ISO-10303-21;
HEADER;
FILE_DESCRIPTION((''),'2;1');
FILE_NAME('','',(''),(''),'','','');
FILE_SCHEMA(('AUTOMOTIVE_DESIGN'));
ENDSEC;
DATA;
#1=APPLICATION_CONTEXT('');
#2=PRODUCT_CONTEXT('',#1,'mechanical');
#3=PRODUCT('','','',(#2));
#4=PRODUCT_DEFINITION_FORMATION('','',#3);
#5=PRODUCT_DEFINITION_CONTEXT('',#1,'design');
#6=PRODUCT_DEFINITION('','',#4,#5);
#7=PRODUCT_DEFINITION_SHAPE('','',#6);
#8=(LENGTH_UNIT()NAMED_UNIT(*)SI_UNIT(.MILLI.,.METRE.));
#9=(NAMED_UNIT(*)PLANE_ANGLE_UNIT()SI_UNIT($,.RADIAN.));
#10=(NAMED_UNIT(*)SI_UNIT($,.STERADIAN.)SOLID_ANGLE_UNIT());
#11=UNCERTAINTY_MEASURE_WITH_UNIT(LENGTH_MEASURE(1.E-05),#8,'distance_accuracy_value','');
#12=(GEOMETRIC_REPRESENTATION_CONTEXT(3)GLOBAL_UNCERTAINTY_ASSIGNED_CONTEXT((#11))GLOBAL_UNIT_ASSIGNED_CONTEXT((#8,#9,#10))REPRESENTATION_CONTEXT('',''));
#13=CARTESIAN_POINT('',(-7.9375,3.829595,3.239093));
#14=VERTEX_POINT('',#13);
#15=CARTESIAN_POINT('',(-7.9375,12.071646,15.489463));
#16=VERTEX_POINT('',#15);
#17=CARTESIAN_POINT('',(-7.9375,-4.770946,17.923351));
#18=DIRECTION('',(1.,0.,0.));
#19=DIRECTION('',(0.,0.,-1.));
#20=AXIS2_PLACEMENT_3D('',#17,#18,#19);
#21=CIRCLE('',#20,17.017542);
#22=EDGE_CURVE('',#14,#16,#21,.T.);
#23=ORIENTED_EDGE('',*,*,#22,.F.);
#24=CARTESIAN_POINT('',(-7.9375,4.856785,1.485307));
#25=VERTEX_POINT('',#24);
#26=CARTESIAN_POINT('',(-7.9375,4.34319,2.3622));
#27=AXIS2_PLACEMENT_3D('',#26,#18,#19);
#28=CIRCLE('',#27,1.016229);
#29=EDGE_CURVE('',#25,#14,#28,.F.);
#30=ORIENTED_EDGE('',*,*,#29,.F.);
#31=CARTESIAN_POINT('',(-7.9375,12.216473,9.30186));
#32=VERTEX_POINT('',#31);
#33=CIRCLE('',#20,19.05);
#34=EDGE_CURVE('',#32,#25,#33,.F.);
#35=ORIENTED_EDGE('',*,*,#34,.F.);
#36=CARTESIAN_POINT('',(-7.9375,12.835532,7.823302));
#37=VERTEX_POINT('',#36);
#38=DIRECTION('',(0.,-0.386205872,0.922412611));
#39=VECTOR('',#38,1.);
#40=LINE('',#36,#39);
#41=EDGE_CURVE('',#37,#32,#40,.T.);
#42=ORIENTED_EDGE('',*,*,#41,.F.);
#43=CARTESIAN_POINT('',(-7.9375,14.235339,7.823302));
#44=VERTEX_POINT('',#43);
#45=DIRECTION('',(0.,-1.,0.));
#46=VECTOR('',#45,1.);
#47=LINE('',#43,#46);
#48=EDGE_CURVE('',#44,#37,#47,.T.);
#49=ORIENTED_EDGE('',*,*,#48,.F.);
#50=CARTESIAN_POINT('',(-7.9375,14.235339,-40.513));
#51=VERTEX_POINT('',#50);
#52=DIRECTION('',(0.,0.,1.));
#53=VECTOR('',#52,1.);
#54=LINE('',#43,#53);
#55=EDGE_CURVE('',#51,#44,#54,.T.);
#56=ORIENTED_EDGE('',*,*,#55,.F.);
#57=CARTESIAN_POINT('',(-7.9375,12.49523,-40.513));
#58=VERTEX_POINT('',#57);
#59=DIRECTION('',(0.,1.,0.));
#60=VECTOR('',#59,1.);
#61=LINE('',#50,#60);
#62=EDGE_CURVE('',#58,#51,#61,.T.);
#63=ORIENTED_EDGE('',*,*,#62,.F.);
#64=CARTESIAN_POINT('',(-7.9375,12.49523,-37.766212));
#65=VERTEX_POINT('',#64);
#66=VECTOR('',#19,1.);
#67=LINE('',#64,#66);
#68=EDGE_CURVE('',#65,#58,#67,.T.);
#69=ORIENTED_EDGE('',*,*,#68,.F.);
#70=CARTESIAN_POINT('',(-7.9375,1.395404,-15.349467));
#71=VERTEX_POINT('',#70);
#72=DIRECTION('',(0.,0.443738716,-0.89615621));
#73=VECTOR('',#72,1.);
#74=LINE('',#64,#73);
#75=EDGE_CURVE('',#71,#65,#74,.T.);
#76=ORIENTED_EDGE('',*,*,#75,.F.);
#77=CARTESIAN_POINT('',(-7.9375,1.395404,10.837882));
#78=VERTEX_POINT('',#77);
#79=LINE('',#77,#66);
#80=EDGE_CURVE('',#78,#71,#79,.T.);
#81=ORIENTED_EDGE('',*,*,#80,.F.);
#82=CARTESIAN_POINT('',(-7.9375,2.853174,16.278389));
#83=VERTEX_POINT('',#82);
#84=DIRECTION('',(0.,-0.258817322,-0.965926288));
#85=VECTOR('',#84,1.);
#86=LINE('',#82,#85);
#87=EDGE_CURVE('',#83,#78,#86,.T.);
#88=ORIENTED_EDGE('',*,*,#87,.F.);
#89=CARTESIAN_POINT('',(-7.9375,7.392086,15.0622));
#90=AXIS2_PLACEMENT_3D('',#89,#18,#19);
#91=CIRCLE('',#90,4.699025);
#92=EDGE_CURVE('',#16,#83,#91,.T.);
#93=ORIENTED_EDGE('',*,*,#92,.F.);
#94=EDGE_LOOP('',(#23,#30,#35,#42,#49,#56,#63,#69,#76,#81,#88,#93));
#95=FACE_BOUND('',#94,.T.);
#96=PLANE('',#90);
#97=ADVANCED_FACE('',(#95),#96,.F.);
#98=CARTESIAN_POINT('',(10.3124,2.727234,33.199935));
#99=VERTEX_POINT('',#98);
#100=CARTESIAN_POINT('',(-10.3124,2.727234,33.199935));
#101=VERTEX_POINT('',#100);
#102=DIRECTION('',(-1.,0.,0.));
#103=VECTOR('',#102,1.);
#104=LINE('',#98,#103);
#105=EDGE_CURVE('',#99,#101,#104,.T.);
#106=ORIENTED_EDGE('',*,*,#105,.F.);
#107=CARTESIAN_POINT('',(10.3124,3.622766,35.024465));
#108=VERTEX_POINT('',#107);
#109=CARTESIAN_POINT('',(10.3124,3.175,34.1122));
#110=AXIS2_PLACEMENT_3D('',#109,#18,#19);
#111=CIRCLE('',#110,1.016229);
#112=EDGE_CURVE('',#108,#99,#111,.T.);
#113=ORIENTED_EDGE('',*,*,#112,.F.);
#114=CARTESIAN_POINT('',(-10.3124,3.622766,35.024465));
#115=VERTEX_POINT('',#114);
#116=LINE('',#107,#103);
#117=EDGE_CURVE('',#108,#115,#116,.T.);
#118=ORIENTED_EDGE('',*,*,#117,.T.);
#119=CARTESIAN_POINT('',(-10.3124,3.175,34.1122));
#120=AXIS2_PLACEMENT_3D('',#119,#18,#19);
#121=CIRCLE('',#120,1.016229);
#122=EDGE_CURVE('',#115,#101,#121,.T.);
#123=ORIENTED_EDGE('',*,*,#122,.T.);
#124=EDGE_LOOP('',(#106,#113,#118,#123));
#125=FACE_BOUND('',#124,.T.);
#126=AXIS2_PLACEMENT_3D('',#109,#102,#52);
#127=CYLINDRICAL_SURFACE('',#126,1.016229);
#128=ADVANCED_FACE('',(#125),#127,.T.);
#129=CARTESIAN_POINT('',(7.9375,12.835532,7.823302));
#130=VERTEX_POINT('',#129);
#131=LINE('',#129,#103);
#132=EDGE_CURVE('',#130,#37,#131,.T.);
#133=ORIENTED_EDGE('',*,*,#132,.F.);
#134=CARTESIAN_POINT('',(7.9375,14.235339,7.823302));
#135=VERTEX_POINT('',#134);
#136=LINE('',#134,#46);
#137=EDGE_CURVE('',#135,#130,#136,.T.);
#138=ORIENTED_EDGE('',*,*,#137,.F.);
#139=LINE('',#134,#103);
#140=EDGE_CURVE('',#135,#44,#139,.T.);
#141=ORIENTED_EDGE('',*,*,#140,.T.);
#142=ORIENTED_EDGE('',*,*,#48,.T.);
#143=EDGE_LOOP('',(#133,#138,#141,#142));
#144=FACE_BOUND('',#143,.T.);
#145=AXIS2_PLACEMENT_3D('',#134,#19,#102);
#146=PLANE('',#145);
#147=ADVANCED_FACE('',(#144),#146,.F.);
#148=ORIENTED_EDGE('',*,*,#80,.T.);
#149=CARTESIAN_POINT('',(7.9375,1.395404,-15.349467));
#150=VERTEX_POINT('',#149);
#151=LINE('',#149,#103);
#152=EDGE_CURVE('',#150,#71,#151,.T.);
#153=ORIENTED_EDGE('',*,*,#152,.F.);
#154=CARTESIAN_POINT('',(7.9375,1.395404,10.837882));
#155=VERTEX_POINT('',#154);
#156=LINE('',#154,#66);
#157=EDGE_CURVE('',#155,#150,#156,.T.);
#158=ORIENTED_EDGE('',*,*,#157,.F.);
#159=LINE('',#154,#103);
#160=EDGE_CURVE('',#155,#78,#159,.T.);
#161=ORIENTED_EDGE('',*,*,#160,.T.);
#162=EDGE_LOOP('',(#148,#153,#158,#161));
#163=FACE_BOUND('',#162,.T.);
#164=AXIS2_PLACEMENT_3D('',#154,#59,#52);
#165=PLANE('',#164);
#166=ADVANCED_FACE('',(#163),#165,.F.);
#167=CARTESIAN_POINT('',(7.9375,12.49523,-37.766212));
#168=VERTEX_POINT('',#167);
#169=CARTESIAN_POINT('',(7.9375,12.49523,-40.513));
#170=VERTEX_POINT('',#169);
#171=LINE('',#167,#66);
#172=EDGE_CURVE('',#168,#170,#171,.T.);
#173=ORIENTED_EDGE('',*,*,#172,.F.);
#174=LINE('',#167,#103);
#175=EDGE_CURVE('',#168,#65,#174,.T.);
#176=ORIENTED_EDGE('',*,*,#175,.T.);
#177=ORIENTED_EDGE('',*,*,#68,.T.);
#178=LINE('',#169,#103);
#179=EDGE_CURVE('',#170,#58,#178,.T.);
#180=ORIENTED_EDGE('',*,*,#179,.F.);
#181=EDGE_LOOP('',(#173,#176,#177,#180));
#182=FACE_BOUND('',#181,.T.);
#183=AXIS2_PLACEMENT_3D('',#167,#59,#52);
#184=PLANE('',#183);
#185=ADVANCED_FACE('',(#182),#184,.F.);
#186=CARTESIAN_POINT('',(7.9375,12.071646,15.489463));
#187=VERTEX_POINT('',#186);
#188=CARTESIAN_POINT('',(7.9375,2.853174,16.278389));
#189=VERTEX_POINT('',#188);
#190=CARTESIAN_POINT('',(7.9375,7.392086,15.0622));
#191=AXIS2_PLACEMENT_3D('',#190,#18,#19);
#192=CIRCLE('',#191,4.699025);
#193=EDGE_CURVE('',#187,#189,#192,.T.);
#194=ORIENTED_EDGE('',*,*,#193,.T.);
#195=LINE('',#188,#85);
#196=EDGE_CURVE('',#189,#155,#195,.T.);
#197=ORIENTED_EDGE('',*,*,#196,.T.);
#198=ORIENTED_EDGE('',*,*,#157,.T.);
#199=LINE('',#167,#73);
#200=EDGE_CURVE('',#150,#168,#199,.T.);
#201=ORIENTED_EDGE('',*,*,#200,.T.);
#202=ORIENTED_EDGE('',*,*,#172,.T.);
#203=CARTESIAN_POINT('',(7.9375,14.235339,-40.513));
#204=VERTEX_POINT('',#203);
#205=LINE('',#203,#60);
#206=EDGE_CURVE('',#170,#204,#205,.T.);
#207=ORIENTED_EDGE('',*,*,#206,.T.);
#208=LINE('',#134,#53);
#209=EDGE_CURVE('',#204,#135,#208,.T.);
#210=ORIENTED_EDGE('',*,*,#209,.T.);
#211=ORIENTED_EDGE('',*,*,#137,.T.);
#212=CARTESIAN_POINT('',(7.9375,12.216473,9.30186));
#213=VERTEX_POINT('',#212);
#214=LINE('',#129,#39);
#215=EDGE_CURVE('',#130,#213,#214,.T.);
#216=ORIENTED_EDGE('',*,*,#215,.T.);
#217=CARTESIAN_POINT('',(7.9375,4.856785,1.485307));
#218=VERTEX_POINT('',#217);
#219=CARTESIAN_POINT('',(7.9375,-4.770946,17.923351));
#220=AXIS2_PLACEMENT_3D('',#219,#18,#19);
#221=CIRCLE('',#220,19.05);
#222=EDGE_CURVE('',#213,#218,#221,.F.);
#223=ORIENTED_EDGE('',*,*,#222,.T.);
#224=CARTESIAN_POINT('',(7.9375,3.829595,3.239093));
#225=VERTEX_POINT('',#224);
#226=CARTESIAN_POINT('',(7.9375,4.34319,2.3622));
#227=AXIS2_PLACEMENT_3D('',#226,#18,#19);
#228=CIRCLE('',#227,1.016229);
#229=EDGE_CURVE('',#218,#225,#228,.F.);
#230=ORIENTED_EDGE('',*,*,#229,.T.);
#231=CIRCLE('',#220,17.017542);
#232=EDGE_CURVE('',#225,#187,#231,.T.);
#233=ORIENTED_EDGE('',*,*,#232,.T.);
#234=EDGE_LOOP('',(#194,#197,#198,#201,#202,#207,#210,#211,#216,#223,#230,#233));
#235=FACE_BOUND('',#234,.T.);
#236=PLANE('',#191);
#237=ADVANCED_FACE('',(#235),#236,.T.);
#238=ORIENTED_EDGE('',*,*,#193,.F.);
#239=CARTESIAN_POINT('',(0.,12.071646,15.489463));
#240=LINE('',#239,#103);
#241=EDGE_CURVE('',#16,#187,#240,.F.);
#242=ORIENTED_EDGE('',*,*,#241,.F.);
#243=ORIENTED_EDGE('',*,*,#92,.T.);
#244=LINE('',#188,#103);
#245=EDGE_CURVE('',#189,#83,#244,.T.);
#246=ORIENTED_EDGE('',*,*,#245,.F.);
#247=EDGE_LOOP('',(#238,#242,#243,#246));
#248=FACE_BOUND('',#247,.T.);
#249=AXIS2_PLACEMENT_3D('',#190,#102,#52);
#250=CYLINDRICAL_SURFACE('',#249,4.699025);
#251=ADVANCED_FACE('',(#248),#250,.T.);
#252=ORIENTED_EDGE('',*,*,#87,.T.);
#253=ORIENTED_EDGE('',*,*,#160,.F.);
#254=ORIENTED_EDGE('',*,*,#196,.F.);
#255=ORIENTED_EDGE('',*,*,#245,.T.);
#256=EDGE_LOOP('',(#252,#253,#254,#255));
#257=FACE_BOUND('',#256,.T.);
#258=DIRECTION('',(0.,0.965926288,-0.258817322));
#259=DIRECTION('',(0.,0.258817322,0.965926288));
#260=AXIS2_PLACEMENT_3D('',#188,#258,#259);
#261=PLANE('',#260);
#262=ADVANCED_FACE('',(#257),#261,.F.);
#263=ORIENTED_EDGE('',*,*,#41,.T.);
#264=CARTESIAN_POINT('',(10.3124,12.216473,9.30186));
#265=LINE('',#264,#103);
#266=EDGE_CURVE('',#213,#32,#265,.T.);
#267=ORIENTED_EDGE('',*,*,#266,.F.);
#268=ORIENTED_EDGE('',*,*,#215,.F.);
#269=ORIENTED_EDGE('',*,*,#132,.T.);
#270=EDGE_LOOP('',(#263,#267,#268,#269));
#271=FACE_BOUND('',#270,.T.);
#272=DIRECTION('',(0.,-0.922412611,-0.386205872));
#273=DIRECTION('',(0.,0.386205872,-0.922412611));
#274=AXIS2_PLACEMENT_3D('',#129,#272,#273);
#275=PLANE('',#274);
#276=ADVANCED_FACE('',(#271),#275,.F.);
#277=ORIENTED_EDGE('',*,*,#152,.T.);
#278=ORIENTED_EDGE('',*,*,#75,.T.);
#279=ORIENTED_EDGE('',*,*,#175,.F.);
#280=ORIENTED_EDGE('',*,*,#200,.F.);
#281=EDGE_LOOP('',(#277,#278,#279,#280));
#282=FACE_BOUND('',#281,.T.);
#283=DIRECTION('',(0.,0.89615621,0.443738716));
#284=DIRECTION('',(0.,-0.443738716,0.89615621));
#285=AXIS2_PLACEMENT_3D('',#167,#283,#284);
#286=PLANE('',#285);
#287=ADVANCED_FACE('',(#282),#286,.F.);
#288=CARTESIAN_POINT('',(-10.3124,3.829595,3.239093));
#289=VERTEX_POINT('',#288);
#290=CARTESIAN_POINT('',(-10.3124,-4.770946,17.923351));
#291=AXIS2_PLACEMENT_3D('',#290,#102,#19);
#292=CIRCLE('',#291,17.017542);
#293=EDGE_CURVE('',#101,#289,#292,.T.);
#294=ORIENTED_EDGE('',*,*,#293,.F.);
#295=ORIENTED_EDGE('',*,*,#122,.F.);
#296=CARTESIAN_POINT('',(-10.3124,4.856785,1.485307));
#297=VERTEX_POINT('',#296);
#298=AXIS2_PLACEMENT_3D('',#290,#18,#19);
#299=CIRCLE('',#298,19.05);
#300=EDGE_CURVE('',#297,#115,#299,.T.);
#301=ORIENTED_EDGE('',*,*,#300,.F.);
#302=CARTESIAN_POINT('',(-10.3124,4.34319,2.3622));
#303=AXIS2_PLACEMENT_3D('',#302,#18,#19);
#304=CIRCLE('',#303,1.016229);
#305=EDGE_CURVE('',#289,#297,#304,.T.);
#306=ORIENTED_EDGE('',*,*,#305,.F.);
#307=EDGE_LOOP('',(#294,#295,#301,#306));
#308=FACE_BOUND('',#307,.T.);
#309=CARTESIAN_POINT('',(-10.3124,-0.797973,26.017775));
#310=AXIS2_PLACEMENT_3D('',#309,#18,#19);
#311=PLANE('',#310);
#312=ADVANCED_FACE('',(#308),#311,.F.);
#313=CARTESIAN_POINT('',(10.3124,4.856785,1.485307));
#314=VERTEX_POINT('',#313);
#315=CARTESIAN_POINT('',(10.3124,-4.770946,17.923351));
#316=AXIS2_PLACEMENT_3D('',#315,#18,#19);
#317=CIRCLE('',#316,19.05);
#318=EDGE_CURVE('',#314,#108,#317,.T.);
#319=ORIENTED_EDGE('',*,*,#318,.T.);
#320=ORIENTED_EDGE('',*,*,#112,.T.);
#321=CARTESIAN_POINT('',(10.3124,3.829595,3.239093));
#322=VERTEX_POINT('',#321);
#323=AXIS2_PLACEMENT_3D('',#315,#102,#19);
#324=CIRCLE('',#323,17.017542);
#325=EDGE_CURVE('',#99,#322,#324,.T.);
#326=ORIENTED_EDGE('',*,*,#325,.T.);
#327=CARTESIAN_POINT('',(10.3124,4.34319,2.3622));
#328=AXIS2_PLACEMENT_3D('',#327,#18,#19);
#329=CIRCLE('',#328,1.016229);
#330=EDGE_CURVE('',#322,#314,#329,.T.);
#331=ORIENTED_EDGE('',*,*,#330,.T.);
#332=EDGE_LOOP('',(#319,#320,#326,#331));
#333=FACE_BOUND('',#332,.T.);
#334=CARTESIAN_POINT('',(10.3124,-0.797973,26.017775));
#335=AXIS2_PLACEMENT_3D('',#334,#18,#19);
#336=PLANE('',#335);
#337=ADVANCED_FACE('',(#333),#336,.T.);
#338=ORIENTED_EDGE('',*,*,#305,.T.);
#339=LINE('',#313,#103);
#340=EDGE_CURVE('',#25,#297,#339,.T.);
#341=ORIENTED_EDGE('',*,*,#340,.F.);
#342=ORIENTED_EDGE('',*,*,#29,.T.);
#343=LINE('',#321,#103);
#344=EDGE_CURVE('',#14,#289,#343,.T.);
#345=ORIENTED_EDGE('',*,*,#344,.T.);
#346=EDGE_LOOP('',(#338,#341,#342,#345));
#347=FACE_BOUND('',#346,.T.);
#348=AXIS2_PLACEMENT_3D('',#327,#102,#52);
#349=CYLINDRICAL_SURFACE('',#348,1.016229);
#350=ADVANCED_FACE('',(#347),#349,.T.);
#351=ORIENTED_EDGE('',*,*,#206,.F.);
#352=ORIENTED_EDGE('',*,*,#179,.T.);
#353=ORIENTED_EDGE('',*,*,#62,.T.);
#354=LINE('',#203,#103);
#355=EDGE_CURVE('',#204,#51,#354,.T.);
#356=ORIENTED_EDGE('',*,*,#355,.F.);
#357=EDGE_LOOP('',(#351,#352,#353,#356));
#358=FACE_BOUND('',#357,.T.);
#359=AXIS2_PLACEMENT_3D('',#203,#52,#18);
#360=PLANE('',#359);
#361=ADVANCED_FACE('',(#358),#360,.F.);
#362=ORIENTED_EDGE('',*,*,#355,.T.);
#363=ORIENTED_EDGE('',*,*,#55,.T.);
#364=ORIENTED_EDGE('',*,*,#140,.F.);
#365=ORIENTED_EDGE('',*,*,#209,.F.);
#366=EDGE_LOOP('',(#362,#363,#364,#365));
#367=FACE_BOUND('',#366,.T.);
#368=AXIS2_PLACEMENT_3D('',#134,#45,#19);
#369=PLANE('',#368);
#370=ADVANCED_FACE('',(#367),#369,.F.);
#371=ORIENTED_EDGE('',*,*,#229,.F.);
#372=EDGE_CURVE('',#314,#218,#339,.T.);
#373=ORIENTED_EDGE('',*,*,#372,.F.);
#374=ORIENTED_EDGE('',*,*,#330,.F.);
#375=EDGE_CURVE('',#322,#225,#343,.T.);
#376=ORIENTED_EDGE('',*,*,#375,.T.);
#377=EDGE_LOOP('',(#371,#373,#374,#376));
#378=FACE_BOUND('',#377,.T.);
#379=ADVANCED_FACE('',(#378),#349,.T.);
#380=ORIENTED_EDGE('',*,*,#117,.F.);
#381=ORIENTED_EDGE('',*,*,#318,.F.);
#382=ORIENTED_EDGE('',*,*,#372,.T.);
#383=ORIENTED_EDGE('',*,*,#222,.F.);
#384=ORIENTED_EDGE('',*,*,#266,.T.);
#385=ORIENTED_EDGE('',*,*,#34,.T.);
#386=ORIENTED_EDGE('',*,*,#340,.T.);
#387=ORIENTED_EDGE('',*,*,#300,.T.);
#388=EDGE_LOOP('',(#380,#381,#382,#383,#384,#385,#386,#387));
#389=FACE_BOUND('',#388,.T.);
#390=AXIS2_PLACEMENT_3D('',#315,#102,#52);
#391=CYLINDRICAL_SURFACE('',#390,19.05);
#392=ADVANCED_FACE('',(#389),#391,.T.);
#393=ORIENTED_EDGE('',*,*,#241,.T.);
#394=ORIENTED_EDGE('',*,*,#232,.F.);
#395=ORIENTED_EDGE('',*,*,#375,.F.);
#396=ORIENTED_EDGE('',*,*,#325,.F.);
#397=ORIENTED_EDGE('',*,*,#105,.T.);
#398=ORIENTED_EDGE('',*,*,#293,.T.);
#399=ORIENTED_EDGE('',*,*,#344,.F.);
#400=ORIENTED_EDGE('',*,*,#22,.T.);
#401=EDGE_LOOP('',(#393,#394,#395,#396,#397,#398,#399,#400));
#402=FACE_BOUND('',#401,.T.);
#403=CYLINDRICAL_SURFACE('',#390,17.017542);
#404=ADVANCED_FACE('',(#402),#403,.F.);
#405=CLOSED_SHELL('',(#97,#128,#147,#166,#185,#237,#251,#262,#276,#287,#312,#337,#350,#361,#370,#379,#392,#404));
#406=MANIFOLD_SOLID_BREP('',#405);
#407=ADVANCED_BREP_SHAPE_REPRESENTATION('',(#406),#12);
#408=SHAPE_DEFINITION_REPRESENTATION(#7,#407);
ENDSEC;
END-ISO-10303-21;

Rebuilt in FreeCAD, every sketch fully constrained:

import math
import FreeCAD as App
import Part
import Sketcher

V = App.Vector
Q = App.Units.Quantity

doc = App.newDocument("Part")
params = doc.addObject("Spreadsheet::Sheet", "Params")
for row, (alias, value) in enumerate([
    ("pad1_length", "0.625 in"),
    ("sketch2_radius", "0.75 in"),
    ("pad2_length", "0.812 in"),
], start=1):
    params.set(f"A{row}", alias)
    params.set(f"B{row}", "=" + value)
    params.setAlias(f"B{row}", alias)

body = doc.addObject("PartDesign::Body", "Body")

# Sketch on YZ plane
sketch1 = body.newObject("Sketcher::SketchObject", "Sketch")
sketch1.AttachmentSupport = (doc.getObject("YZ_Plane"), [""])
sketch1.MapMode = "FlatFace"
sketch1.addGeometry([
    Part.LineSegment(V(12.5, -40.5, 0), V(14.2, -40.5, 0)),  # 0
    Part.LineSegment(V(14.2, -40.5, 0), V(14.2, 7.8, 0)),  # 1
    Part.LineSegment(V(14.2, 7.8, 0), V(12.8, 7.8, 0)),  # 2
    Part.LineSegment(V(12.8, 7.8, 0), V(12.1, 9.6, 0)),  # 3
    Part.LineSegment(V(12.1, 9.6, 0), V(12.1, 15.1, 0)),  # 4
    Part.ArcOfCircle(Part.Circle(V(7.4, 15.1, 0), V(0, 0, 1), 4.7), math.radians(0), math.radians(165)),  # 5
    Part.LineSegment(V(2.9, 16.3, 0), V(1.4, 10.8, 0)),  # 6
    Part.LineSegment(V(1.4, 10.8, 0), V(1.4, -15.3, 0)),  # 7
    Part.LineSegment(V(1.4, -15.3, 0), V(12.5, -37.8, 0)),  # 8
    Part.LineSegment(V(12.5, -37.8, 0), V(12.5, -40.5, 0)),  # 9
], False)
sketch1.addConstraint([
    Sketcher.Constraint("Coincident", 0, 2, 1, 1),
    Sketcher.Constraint("Coincident", 1, 2, 2, 1),
    Sketcher.Constraint("Coincident", 2, 2, 3, 1),
    Sketcher.Constraint("Coincident", 3, 2, 4, 1),
    Sketcher.Constraint("Tangent", 4, 2, 5, 1),
    Sketcher.Constraint("Tangent", 5, 2, 6, 1),
    Sketcher.Constraint("Coincident", 6, 2, 7, 1),
    Sketcher.Constraint("Coincident", 7, 2, 8, 1),
    Sketcher.Constraint("Coincident", 8, 2, 9, 1),
    Sketcher.Constraint("Coincident", 9, 2, 0, 1),
    Sketcher.Constraint("Horizontal", 0),
    Sketcher.Constraint("Vertical", 1),
    Sketcher.Constraint("Horizontal", 2),
    Sketcher.Constraint("Vertical", 4),
    Sketcher.Constraint("Vertical", 7),
    Sketcher.Constraint("Vertical", 9),
    Sketcher.Constraint("DistanceY", -1, 1, 5, 3, Q("0.593 in")),
    Sketcher.Constraint("DistanceY", 0, 2, -1, 1, Q("1.595 in")),
    Sketcher.Constraint("DistanceY", 1, 1, 1, 2, Q("48.336302 mm")),
    Sketcher.Constraint("Radius", 5, Q("4.699025 mm")),
    Sketcher.Constraint("DistanceX", 0, 1, 0, 2, Q("1.740109 mm")),
    Sketcher.Constraint("DistanceY", 7, 2, 7, 1, Q("26.187349 mm")),
    Sketcher.Constraint("DistanceX", 8, 2, 2, 2, Q("0.340302 mm")),
    Sketcher.Constraint("DistanceY", 4, 1, 4, 2, Q("5.460927 mm")),
    Sketcher.Constraint("DistanceY", 9, 2, 9, 1, Q("2.746788 mm")),
    Sketcher.Constraint("DistanceX", -1, 1, 0, 2, Q("14.235339 mm")),
    Sketcher.Constraint("DistanceX", -1, 1, 3, 2, Q("12.091111 mm")),
    Sketcher.Constraint("DistanceY", -1, 1, 5, 2, Q("16.278389 mm")),
    Sketcher.Constraint("DistanceY", -1, 1, 6, 2, Q("10.837882 mm")),
])
pad1 = body.newObject("PartDesign::Pad", "Pad")
pad1.Profile = sketch1
pad1.setExpression("Length", "Params.pad1_length")
pad1.Midplane = True

# Sketch on YZ plane
sketch2 = body.newObject("Sketcher::SketchObject", "Sketch001")
sketch2.AttachmentSupport = (doc.getObject("YZ_Plane"), [""])
sketch2.MapMode = "FlatFace"
sketch2.addGeometry([
    Part.ArcOfCircle(Part.Circle(V(4.3, 2.4, 0), V(0, 0, 1), 1), math.radians(120), math.radians(300)),
    Part.ArcOfCircle(Part.Circle(V(-4.8, 17.9, 0), V(0, 0, 1), 19.1), math.radians(-60), math.radians(64)),
    Part.ArcOfCircle(Part.Circle(V(3.2, 34.1, 0), V(0, 0, 1), 1), math.radians(64), math.radians(244)),
    Part.ArcOfCircle(Part.Circle(V(-4.8, 17.9, 0), V(0, 0, 1), 17), math.radians(-60), math.radians(64)),
], False)
sketch2.addConstraint([
    Sketcher.Constraint("Tangent", 0, 2, 1, 1),
    Sketcher.Constraint("Tangent", 1, 2, 2, 1),
    Sketcher.Constraint("Tangent", 2, 2, 3, 2),
    Sketcher.Constraint("Tangent", 3, 1, 0, 1),
    Sketcher.Constraint("Coincident", 3, 3, 1, 3),
    Sketcher.Constraint("Radius", 1, Q("0.75 in")),
    Sketcher.Constraint("DistanceY", 0, 3, 2, 3, Q("1.25 in")),
    Sketcher.Constraint("DistanceY", -1, 1, 0, 3, Q("0.093 in")),
    Sketcher.Constraint("DistanceX", -1, 1, 2, 3, Q("0.125 in")),
    Sketcher.Constraint("Radius", 0, Q("1.016229 mm")),
    Sketcher.Constraint("DistanceX", 2, 2, 3, 1, Q("0.0434 in")),
])
sketch2.setExpression("Constraints[5]", "Params.sketch2_radius")
pad2 = body.newObject("PartDesign::Pad", "Pad001")
pad2.Profile = sketch2
pad2.setExpression("Length", "Params.pad2_length")
pad2.Midplane = True

doc.recompute()
